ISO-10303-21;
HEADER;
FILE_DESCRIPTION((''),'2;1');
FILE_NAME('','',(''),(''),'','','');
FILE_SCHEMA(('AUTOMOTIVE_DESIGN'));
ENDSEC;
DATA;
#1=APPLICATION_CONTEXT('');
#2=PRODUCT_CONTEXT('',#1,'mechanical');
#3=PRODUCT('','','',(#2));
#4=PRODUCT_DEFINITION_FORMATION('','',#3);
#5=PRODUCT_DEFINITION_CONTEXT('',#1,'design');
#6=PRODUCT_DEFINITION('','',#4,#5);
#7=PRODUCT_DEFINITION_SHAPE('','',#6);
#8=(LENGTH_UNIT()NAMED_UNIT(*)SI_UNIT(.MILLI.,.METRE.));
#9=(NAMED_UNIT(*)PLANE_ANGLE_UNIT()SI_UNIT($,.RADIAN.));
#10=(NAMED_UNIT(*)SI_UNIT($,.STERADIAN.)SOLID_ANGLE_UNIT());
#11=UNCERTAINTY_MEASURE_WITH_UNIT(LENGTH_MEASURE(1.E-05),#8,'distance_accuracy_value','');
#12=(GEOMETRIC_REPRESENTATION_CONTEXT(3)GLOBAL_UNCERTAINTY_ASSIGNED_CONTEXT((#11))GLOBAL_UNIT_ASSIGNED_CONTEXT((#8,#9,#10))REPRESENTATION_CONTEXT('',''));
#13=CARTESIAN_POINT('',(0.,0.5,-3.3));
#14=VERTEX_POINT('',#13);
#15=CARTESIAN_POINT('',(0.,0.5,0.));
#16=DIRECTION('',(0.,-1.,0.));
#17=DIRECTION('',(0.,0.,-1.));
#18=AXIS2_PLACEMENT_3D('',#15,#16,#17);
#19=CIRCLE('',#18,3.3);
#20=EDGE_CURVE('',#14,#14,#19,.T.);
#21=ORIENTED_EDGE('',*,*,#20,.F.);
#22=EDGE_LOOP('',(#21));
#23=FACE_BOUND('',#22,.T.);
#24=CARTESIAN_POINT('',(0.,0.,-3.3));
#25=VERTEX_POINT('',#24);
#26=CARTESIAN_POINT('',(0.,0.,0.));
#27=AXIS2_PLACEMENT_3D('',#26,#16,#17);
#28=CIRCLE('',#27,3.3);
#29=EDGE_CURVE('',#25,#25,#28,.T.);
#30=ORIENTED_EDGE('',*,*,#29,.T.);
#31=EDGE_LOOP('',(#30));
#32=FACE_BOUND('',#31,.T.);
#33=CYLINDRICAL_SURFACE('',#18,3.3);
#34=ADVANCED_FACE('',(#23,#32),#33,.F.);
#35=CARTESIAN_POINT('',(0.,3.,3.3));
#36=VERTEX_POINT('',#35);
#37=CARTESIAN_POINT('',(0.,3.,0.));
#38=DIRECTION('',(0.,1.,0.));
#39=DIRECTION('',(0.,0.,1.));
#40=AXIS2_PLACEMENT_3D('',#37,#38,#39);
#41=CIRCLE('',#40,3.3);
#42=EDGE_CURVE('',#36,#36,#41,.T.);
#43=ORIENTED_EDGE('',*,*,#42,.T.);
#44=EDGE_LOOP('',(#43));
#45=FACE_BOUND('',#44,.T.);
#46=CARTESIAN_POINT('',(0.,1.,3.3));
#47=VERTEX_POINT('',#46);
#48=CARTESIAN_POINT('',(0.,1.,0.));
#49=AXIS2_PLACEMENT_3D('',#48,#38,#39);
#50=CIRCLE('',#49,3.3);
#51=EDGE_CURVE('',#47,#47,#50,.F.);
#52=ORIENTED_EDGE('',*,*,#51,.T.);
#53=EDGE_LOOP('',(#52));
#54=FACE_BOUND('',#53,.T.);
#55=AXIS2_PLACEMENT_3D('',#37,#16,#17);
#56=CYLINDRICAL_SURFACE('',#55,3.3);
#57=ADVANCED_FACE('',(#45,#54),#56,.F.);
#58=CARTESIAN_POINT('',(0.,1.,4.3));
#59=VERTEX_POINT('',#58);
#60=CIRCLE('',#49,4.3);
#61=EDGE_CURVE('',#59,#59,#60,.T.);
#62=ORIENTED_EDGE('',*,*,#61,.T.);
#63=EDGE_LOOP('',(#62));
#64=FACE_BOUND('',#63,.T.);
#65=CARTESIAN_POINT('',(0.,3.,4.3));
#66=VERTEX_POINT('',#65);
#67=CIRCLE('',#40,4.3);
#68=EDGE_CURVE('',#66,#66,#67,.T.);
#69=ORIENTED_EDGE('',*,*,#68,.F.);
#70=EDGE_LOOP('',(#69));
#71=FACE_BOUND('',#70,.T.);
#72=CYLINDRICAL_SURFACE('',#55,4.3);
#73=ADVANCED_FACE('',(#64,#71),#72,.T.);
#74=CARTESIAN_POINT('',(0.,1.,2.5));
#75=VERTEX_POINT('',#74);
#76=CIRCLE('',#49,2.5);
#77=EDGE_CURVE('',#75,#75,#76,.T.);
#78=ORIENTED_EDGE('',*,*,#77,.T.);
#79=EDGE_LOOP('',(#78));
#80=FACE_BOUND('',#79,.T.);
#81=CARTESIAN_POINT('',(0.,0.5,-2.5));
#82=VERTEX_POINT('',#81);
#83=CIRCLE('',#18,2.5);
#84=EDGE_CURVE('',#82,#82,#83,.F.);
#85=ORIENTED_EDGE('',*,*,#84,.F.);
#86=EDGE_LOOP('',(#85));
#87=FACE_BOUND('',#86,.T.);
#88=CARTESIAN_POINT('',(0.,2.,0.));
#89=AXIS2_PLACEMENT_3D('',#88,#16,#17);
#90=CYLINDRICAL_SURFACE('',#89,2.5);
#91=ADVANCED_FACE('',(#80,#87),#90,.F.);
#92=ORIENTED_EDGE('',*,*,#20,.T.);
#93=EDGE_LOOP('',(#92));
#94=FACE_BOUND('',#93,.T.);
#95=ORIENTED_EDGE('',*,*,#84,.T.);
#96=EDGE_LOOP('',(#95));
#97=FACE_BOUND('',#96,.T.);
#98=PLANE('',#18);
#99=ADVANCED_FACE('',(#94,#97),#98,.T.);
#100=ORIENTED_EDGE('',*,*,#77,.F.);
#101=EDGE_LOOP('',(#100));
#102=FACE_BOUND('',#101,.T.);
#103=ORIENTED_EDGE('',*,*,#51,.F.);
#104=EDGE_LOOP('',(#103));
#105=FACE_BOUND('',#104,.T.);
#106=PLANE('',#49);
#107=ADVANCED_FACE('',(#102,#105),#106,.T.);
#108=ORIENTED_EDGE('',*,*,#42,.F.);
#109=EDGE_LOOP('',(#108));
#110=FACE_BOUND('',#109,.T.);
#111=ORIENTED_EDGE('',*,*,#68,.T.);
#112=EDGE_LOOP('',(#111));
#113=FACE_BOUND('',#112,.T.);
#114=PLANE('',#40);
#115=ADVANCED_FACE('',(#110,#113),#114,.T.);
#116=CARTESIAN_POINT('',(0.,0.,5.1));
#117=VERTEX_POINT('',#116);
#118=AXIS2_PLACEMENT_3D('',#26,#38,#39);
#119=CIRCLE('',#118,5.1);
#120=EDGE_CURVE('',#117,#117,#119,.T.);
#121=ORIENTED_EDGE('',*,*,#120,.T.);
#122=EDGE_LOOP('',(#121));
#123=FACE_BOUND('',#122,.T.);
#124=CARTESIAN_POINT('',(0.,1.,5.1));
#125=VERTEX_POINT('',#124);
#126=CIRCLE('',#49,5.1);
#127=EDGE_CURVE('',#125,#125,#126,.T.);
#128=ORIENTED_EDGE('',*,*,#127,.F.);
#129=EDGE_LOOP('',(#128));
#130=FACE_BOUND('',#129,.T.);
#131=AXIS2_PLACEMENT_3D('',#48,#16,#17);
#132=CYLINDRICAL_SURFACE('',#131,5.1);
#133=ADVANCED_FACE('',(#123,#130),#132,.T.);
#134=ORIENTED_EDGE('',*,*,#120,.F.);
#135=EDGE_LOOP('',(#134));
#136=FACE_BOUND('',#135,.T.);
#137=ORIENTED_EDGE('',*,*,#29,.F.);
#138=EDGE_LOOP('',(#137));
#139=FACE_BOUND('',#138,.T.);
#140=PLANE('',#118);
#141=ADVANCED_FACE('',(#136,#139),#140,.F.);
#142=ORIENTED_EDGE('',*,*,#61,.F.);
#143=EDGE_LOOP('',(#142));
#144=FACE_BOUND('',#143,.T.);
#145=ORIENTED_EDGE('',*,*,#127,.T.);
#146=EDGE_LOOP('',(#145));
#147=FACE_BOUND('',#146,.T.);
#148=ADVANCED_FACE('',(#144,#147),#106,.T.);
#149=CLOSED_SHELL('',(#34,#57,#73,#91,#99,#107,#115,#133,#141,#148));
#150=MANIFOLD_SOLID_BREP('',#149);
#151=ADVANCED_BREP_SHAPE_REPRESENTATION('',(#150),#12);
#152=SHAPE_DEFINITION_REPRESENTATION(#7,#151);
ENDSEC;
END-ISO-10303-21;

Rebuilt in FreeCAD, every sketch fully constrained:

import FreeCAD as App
import Part
import Sketcher

V = App.Vector
Q = App.Units.Quantity

doc = App.newDocument("Part")
body = doc.addObject("PartDesign::Body", "Body")

# Sketch on XZ plane
sketch1 = doc.addObject("Sketcher::SketchObject", "Sketch")
body.addObject(sketch1)
sketch1.AttachmentSupport = (doc.XZ_Plane, [""])
sketch1.MapMode = "FlatFace"
sketch1.addGeometry(Part.Circle(V(0, 0, 0), V(0, 0, 1), 5.1), False)
sketch1.addConstraint(Sketcher.Constraint("Coincident", 0, 3, -1, 1))
sketch1.addConstraint(Sketcher.Constraint("Diameter", 0, Q("10.2 mm")))
pad1 = doc.addObject("PartDesign::Pad", "Pad")
body.addObject(pad1)
pad1.Profile = sketch1
pad1.Length = 1
pad1.Reversed = True

# Sketch on XZ plane
sketch2 = doc.addObject("Sketcher::SketchObject", "Sketch001")
body.addObject(sketch2)
sketch2.AttachmentSupport = (doc.XZ_Plane, [""])
sketch2.MapMode = "FlatFace"
sketch2.AttachmentOffset = App.Placement(V(0, 0, -1), App.Rotation())
sketch2.addGeometry(Part.Circle(V(0, 0, 0), V(0, 0, 1), 4.3), False)
sketch2.addGeometry(Part.Circle(V(0, 0, 0), V(0, 0, 1), 3.3), False)
sketch2.addConstraint(Sketcher.Constraint("Coincident", 0, 3, -1, 1))
sketch2.addConstraint(Sketcher.Constraint("Coincident", 1, 3, -1, 1))
sketch2.addConstraint(Sketcher.Constraint("Diameter", 0, Q("8.6 mm")))
sketch2.addConstraint(Sketcher.Constraint("Diameter", 1, Q("6.6 mm")))
pad2 = doc.addObject("PartDesign::Pad", "Pad001")
body.addObject(pad2)
pad2.Profile = sketch2
pad2.Length = 2
pad2.Reversed = True

# Sketch on XZ plane
sketch3 = doc.addObject("Sketcher::SketchObject", "Sketch002")
body.addObject(sketch3)
sketch3.AttachmentSupport = (doc.XZ_Plane, [""])
sketch3.MapMode = "FlatFace"
sketch3.addGeometry(Part.Circle(V(0, 0, 0), V(0, 0, 1), 2.5), False)
sketch3.addConstraint(Sketcher.Constraint("Coincident", 0, 3, -1, 1))
sketch3.addConstraint(Sketcher.Constraint("Diameter", 0, Q("5 mm")))
pocket1 = doc.addObject("PartDesign::Pocket", "Pocket")
body.addObject(pocket1)
pocket1.Profile = sketch3
pocket1.Length = 2

# Sketch on XZ plane
sketch4 = doc.addObject("Sketcher::SketchObject", "Sketch003")
body.addObject(sketch4)
sketch4.AttachmentSupport = (doc.XZ_Plane, [""])
sketch4.MapMode = "FlatFace"
sketch4.addGeometry(Part.Circle(V(0, 0, 0), V(0, 0, 1), 3.3), False)
sketch4.addConstraint(Sketcher.Constraint("Coincident", 0, 3, -1, 1))
sketch4.addConstraint(Sketcher.Constraint("Diameter", 0, Q("6.6 mm")))
pocket2 = doc.addObject("PartDesign::Pocket", "Pocket001")
body.addObject(pocket2)
pocket2.Profile = sketch4
pocket2.Length = 0.5

doc.recompute()
